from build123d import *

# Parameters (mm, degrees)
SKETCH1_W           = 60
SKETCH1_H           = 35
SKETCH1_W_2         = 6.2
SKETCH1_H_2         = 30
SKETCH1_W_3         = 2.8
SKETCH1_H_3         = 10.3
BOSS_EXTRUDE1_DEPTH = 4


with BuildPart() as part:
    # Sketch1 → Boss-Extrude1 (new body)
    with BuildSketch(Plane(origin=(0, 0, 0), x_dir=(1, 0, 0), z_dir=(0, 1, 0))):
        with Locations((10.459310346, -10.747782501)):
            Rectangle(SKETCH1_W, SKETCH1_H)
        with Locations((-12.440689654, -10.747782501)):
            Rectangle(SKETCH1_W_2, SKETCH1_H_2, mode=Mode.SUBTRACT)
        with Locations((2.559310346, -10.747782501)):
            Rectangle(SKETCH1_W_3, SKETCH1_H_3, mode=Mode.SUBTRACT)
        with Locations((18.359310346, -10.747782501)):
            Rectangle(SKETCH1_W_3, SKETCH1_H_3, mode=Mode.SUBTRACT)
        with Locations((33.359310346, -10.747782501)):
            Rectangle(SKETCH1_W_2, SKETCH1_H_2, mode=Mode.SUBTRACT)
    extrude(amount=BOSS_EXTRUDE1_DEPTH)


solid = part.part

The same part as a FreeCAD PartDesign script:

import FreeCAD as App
import Part
import Sketcher

V = App.Vector


def add_polygon(sketch, points):
    """Adds a closed chain of lines whose ends are joined by coincident constraints."""
    first, n = sketch.GeometryCount, len(points)
    for a, b in zip(points, points[1:] + points[:1]):
        sketch.addGeometry(Part.LineSegment(App.Vector(*a, 0), App.Vector(*b, 0)), False)
    for i in range(n):
        sketch.addConstraint(Sketcher.Constraint("Coincident", first + i, 2, first + (i + 1) % n, 1))

doc = App.newDocument("Part")
body = doc.addObject("PartDesign::Body", "Body")

# Sketch on XZ plane
sketch1 = body.newObject("Sketcher::SketchObject", "Sketch")
sketch1.AttachmentSupport = (doc.getObject("XZ_Plane"), [""])
sketch1.MapMode = "FlatFace"
add_polygon(sketch1, [(-19.54069, -6.752217), (-19.54069, 28.247783), (40.45931, 28.247783), (40.45931, -6.752217)])  # lines 0-3
add_polygon(sketch1, [(-9.34069, 25.747783), (-15.54069, 25.747783), (-15.54069, -4.252217), (-9.34069, -4.252217)])  # lines 4-7
add_polygon(sketch1, [(3.95931, 15.897783), (1.15931, 15.897783), (1.15931, 5.597783), (3.95931, 5.597783)])  # lines 8-11
add_polygon(sketch1, [(19.75931, 15.897783), (16.95931, 15.897783), (16.95931, 5.597783), (19.75931, 5.597783)])  # lines 12-15
add_polygon(sketch1, [(36.45931, 25.747783), (30.25931, 25.747783), (30.25931, -4.252217), (36.45931, -4.252217)])  # lines 16-19
sketch1.addConstraint([
    Sketcher.Constraint("Vertical", 0),
    Sketcher.Constraint("Horizontal", 1),
    Sketcher.Constraint("Vertical", 2),
    Sketcher.Constraint("Horizontal", 3),
    Sketcher.Constraint("Horizontal", 4),
    Sketcher.Constraint("Vertical", 5),
    Sketcher.Constraint("Horizontal", 6),
    Sketcher.Constraint("Vertical", 7),
    Sketcher.Constraint("Horizontal", 8),
    Sketcher.Constraint("Vertical", 9),
    Sketcher.Constraint("Horizontal", 10),
    Sketcher.Constraint("Vertical", 11),
    Sketcher.Constraint("Horizontal", 12),
    Sketcher.Constraint("Vertical", 13),
    Sketcher.Constraint("Horizontal", 14),
    Sketcher.Constraint("Vertical", 15),
    Sketcher.Constraint("Horizontal", 16),
    Sketcher.Constraint("Vertical", 17),
    Sketcher.Constraint("Horizontal", 18),
    Sketcher.Constraint("Vertical", 19),
    Sketcher.Constraint("Horizontal", 11, 2, 12, 2),
    Sketcher.Constraint("Horizontal", 10, 2, 13, 2),
    Sketcher.Constraint("Horizontal", 7, 2, 16, 2),
    Sketcher.Constraint("Horizontal", 6, 2, 17, 2),
    Sketcher.Constraint("Equal", 10, 12),
    Sketcher.Constraint("Equal", 6, 16),
    Sketcher.Constraint("DistanceX", 1, 1, 1, 2, 60.0),
    Sketcher.Constraint("DistanceY", 0, 1, 0, 2, 35.0),
    Sketcher.Constraint("DistanceY", 5, 2, 5, 1, 30.0),
    Sketcher.Constraint("DistanceX", 4, 2, 4, 1, 6.2),
    Sketcher.Constraint("DistanceX", 8, 2, 8, 1, 2.8),
    Sketcher.Constraint("DistanceY", 9, 2, 9, 1, 10.3),
    Sketcher.Constraint("DistanceX", 0, 2, 4, 2, 4.0),
    Sketcher.Constraint("DistanceX", 11, 2, 12, 2, 13.0),
    Sketcher.Constraint("DistanceX", 18, 2, 2, 2, 4.0),
    Sketcher.Constraint("DistanceY", 4, 2, 0, 2, 2.5),
    Sketcher.Constraint("DistanceX", 7, 2, 8, 2, 10.5),
    Sketcher.Constraint("DistanceY", 8, 2, 7, 2, 9.85),
    Sketcher.Constraint("DistanceX", 0, 2, -1, 1, 19.54069),
    Sketcher.Constraint("DistanceY", -1, 1, 0, 2, 28.247783),
])
pad1 = body.newObject("PartDesign::Pad", "Pad")
pad1.Profile = sketch1
pad1.Length = 4
pad1.Reversed = True

doc.recompute()
